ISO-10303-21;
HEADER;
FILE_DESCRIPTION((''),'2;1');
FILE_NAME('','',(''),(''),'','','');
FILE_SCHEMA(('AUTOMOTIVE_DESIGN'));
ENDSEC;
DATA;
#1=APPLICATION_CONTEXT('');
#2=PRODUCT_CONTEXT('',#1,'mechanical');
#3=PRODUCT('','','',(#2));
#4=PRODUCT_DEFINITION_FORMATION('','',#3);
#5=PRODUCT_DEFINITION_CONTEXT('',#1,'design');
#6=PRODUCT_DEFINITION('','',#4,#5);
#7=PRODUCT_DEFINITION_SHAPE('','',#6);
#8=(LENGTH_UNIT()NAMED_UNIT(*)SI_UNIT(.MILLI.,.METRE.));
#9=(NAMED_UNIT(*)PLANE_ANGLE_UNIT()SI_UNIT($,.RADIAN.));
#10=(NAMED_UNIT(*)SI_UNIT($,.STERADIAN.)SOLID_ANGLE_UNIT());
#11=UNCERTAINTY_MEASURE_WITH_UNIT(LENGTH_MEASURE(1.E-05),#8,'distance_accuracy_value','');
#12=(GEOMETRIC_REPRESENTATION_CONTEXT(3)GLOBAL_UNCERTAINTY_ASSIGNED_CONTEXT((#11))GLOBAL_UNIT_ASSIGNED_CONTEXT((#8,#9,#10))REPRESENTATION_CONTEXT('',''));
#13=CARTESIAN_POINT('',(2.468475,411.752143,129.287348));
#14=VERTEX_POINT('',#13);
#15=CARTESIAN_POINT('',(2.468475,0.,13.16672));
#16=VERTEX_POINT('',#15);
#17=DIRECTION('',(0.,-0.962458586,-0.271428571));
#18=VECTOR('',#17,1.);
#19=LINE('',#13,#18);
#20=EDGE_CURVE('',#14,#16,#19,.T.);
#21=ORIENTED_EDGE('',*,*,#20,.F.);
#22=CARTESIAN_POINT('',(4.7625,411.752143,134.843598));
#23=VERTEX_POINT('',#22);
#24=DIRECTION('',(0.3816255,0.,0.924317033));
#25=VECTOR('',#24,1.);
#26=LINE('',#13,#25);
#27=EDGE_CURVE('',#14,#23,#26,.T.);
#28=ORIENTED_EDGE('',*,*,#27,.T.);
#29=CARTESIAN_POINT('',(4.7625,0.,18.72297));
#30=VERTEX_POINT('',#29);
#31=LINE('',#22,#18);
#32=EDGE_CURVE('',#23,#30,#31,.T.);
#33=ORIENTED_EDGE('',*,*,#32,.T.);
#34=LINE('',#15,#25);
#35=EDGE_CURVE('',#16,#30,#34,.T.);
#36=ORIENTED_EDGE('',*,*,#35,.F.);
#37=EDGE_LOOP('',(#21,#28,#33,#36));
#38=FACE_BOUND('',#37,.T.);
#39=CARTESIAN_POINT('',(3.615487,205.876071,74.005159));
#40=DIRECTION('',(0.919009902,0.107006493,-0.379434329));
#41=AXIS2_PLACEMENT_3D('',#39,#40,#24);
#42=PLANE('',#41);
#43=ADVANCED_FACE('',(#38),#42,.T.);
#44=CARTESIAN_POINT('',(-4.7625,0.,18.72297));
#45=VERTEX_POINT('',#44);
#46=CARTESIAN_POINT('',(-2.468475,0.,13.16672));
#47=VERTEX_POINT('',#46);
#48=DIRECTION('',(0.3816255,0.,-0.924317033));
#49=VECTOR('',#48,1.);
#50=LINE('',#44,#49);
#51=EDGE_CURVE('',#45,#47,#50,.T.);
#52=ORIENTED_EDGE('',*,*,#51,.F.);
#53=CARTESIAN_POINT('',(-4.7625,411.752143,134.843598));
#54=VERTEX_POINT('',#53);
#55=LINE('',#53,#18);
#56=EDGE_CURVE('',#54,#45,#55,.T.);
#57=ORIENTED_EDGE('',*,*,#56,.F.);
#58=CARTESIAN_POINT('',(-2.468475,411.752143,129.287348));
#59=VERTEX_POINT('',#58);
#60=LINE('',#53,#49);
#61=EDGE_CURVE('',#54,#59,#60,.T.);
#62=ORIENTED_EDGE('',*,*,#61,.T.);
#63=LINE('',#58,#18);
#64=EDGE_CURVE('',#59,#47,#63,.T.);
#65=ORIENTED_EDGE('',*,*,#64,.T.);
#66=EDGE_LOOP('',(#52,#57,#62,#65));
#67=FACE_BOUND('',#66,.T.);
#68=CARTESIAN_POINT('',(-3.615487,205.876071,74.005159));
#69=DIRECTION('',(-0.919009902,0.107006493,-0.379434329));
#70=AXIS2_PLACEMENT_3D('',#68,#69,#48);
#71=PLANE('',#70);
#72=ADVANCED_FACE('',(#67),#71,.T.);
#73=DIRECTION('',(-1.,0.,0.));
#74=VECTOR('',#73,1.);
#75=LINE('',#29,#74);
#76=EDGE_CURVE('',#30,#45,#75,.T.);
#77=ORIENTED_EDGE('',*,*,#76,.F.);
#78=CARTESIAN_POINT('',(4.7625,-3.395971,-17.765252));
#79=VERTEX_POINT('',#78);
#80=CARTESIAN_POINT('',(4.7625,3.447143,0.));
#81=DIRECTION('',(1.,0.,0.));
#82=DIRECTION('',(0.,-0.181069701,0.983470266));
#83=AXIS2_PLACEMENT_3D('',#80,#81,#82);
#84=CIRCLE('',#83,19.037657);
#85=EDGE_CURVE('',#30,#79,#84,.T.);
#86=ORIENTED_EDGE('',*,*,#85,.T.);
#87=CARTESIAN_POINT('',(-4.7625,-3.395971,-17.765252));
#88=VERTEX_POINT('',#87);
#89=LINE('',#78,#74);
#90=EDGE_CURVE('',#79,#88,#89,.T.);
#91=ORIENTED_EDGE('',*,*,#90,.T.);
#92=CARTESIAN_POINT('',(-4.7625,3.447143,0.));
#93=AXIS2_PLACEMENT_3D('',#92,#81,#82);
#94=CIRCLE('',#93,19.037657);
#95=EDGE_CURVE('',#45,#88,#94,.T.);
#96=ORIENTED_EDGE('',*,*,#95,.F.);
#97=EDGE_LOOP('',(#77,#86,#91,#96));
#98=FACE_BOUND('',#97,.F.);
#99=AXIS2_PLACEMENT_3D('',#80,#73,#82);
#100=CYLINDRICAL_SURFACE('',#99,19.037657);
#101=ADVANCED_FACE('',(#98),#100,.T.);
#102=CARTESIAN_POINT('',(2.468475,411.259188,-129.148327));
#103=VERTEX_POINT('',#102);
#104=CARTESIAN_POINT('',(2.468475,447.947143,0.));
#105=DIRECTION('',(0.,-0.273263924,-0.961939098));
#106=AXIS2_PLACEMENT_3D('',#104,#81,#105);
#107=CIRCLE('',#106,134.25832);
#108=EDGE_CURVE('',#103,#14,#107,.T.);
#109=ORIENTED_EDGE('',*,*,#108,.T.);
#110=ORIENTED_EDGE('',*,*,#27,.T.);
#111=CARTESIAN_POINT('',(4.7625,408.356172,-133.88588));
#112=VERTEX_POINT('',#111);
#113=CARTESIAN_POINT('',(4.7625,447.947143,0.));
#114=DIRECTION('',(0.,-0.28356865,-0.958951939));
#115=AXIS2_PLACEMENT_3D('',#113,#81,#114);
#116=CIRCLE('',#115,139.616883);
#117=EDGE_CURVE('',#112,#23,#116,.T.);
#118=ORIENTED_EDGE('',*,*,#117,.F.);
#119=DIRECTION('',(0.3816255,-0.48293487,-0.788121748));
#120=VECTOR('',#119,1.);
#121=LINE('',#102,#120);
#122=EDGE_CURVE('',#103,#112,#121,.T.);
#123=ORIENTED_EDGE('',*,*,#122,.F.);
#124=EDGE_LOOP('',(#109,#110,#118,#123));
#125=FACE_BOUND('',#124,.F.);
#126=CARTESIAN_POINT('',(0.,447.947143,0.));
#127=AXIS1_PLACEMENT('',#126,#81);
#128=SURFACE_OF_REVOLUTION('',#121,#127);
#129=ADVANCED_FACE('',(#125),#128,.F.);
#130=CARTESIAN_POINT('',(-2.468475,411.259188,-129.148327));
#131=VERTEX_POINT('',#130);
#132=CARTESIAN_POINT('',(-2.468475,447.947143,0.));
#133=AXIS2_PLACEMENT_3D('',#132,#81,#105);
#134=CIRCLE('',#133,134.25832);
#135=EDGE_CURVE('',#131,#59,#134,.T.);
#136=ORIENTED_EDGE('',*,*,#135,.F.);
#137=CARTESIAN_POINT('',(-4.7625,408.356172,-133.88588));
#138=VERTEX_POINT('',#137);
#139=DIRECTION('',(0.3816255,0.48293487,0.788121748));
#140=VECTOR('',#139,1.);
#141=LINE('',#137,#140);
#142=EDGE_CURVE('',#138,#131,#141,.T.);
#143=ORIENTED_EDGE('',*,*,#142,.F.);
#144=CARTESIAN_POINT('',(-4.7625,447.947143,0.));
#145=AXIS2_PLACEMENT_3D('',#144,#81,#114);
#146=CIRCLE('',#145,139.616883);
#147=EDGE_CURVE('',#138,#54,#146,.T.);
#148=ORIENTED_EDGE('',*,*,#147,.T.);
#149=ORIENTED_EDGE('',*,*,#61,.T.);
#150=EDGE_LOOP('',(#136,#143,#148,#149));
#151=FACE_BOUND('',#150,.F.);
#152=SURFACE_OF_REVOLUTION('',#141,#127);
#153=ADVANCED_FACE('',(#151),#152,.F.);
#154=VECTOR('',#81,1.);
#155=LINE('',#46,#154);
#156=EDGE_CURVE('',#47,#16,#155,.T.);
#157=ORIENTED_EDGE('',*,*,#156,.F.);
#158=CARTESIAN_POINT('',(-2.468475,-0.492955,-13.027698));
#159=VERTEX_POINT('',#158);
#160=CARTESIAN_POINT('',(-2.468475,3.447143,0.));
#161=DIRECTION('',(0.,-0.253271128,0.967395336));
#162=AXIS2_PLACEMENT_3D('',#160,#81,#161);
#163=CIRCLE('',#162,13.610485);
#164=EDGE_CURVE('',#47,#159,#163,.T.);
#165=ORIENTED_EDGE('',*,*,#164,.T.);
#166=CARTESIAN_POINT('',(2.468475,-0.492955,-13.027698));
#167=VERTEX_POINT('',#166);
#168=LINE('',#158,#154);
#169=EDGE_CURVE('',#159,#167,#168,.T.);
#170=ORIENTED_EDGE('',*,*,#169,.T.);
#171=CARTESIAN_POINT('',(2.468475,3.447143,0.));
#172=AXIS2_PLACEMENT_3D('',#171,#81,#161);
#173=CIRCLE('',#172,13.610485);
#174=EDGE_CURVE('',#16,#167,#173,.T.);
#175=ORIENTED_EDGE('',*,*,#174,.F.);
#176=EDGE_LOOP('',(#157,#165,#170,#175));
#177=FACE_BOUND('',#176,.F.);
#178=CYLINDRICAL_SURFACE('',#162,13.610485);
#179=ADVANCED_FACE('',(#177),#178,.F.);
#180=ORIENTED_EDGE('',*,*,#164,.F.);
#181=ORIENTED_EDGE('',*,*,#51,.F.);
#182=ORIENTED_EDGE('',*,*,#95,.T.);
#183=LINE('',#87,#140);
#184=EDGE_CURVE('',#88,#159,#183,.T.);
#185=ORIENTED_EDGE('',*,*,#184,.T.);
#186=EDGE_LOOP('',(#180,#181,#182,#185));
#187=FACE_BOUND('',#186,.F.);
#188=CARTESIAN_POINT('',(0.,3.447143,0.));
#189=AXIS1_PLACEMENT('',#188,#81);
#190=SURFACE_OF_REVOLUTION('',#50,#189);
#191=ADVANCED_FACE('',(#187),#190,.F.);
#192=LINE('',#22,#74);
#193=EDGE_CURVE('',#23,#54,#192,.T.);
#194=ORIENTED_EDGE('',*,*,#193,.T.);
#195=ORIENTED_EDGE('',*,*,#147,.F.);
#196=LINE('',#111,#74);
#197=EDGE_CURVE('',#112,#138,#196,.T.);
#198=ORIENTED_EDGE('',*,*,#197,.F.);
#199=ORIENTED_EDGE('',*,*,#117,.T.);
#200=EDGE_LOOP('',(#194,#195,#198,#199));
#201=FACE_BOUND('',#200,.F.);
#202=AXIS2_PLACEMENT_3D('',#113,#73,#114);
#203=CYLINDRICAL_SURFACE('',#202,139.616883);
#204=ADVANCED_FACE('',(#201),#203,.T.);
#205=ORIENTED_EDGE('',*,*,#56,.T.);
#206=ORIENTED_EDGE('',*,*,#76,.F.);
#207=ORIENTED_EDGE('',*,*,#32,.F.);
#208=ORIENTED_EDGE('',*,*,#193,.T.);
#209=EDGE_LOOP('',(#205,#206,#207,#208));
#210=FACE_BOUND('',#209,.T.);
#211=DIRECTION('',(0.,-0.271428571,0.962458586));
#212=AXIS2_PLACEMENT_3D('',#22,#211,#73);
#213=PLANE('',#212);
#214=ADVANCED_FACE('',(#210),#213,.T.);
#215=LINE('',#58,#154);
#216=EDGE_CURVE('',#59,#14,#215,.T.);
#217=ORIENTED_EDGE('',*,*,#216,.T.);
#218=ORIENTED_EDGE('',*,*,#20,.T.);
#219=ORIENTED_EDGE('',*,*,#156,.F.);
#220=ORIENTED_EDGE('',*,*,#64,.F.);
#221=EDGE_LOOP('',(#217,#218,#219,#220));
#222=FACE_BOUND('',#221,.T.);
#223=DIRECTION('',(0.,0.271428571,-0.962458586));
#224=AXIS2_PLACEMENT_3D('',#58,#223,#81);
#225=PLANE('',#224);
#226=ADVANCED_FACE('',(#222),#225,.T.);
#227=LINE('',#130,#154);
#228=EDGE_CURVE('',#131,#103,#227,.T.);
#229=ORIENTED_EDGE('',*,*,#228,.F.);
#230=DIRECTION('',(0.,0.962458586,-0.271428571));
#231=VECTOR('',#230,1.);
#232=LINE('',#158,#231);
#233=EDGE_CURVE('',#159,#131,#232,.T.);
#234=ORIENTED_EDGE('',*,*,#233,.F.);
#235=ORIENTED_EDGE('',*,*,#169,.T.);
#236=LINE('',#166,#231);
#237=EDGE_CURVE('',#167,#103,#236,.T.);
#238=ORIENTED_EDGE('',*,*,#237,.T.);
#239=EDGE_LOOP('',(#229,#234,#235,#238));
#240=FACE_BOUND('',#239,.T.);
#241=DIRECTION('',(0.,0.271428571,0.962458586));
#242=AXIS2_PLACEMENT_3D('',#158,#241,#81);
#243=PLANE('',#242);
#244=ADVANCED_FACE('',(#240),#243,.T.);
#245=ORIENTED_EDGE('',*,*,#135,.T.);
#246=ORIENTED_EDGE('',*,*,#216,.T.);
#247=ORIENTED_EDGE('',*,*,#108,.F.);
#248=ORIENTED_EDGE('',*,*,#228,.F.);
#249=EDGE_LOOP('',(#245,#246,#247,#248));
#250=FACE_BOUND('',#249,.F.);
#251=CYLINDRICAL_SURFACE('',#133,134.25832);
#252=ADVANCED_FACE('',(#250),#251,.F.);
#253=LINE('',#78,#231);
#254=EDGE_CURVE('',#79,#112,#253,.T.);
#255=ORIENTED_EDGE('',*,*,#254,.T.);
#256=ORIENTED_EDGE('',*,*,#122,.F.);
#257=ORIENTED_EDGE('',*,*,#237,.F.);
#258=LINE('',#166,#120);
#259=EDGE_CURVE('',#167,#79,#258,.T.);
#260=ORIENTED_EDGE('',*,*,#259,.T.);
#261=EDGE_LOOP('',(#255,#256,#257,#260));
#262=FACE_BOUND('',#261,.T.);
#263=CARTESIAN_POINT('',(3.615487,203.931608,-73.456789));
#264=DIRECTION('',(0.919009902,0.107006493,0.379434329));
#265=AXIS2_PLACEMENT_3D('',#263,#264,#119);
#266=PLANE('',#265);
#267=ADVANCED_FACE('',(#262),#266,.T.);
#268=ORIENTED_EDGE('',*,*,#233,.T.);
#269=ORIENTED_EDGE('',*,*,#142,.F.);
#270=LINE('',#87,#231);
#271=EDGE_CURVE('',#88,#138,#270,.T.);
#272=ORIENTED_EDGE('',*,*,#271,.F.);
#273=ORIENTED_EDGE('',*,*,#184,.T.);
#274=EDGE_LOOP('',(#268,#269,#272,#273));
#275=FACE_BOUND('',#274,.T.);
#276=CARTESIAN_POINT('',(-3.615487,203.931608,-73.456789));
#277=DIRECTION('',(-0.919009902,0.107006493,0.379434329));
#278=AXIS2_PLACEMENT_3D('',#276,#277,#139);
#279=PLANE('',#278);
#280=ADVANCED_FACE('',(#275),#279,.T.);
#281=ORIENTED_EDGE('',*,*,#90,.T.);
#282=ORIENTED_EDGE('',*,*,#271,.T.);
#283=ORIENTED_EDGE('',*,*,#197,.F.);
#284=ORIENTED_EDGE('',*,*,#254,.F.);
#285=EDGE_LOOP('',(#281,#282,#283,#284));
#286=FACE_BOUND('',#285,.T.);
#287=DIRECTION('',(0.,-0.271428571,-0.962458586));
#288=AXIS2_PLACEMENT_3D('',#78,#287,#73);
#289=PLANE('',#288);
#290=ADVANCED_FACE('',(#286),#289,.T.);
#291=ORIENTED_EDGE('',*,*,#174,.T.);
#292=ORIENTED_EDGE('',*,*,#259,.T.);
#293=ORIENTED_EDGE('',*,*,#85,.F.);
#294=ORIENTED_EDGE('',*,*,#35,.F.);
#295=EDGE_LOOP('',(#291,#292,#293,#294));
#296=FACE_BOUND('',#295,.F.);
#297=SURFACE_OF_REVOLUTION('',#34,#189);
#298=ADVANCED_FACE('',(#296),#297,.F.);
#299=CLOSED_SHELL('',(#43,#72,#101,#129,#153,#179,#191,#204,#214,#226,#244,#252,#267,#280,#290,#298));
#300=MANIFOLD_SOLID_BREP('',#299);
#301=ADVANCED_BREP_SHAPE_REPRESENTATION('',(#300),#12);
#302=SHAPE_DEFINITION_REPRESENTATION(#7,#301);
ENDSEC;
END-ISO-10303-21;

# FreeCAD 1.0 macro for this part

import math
import FreeCAD as App
import Part
import Sketcher
from FreeCAD import Vector
Q = App.Units.Quantity

doc = App.newDocument("Part")
body = doc.addObject("PartDesign::Body", "Body")

# Sketch on XZ plane
sketch1 = doc.addObject("Sketcher::SketchObject", "Sketch")
body.addObject(sketch1)
sketch1.AttachmentSupport = (doc.XZ_Plane, [""])
sketch1.MapMode = "FlatFace"
sketch1.addGeometry(Part.LineSegment(Vector(-4.8, 18.7, 0), Vector(-2.5, 13.2, 0)), False)
sketch1.addGeometry(Part.LineSegment(Vector(-2.5, 13.2, 0), Vector(2.5, 13.2, 0)), False)
sketch1.addGeometry(Part.LineSegment(Vector(2.5, 13.2, 0), Vector(4.8, 18.7, 0)), False)
sketch1.addGeometry(Part.LineSegment(Vector(4.8, 18.7, 0), Vector(-4.8, 18.7, 0)), False)
sketch1.addConstraint(Sketcher.Constraint("Coincident", 0, 2, 1, 1))
sketch1.addConstraint(Sketcher.Constraint("Coincident", 1, 2, 2, 1))
sketch1.addConstraint(Sketcher.Constraint("Coincident", 2, 2, 3, 1))
sketch1.addConstraint(Sketcher.Constraint("Coincident", 3, 2, 0, 1))
sketch1.addConstraint(Sketcher.Constraint("Horizontal", 1))
sketch1.addConstraint(Sketcher.Constraint("Horizontal", 3))
sketch1.addConstraint(Sketcher.Constraint("Equal", 0, 2))
sketch1.addConstraint(Sketcher.Constraint("DistanceX", 3, 2, 3, 1, Q("0.375 in")))
sketch1.addConstraint(Sketcher.Constraint("DistanceX", -1, 1, 2, 2, Q("0.1875 in")))
sketch1.addConstraint(Sketcher.Constraint("DistanceY", 1, 2, 2, 2, Q("0.21875 in")))
sketch1.addConstraint(Sketcher.Constraint("DistanceX", 1, 1, 1, 2, 4.936949))
sketch1.addConstraint(Sketcher.Constraint("DistanceY", -1, 1, 0, 2, 13.16672))

# Sketch on YZ plane
sketch2 = doc.addObject("Sketcher::SketchObject", "Sketch001")
body.addObject(sketch2)
sketch2.AttachmentSupport = (doc.YZ_Plane, [""])
sketch2.MapMode = "FlatFace"
sketch2.addGeometry(Part.ArcOfCircle(Part.Circle(Vector(448, 0, 0), Vector(0, 0, 1), 133), math.radians(-106), math.radians(106)), False)
sketch2.addGeometry(Part.LineSegment(Vector(412, 128, 0), Vector(0, 12, 0)), False)
sketch2.addGeometry(Part.ArcOfCircle(Part.Circle(Vector(3, 0, 0), Vector(0, 0, 1), 13), math.radians(106), math.radians(254)), False)
sketch2.addGeometry(Part.LineSegment(Vector(0, -12, 0), Vector(412, -128, 0)), False)
sketch2.addConstraint(Sketcher.Constraint("Tangent", 0, 2, 1, 1))
sketch2.addConstraint(Sketcher.Constraint("Tangent", 1, 2, 2, 1))
sketch2.addConstraint(Sketcher.Constraint("Tangent", 2, 2, 3, 1))
sketch2.addConstraint(Sketcher.Constraint("Tangent", 3, 2, 0, 1))
sketch2.addConstraint(Sketcher.Constraint("Symmetric", 1, 2, 2, 2, -1, 1))
sketch2.addConstraint(Sketcher.Constraint("PointOnObject", 0, 3, -1))
sketch2.addConstraint(Sketcher.Constraint("Radius", 2, Q("0.5 in")))
sketch2.addConstraint(Sketcher.Constraint("Radius", 0, Q("5.25 in")))
sketch2.addConstraint(Sketcher.Constraint("DistanceX", 2, 3, 0, 3, Q("17.5 in")))
doc.recompute()

additivepipe = doc.addObject("PartDesign::AdditivePipe", "AdditivePipe")
body.addObject(additivepipe)
additivepipe.Profile = sketch1
additivepipe.Spine = (sketch2, ["Edge1", "Edge2", "Edge3", "Edge4"])

doc.recompute()
